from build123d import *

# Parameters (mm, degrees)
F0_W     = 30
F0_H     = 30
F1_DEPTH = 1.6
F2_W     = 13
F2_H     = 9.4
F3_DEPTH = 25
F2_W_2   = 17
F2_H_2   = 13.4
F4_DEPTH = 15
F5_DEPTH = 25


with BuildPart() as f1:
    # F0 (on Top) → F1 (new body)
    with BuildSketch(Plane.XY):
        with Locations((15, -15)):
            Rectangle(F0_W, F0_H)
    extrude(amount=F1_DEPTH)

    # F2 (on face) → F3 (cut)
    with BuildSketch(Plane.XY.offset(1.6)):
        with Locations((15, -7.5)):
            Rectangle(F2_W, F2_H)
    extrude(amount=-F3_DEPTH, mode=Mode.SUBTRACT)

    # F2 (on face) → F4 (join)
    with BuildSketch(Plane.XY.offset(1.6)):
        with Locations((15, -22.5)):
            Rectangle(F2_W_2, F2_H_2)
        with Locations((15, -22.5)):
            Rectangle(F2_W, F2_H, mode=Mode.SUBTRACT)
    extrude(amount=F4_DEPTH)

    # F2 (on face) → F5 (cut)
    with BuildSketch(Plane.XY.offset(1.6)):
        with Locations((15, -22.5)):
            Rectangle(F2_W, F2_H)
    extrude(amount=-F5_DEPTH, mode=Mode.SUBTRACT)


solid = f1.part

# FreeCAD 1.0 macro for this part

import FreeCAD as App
import Part
import Sketcher
Q = App.Units.Quantity

doc = App.newDocument("Part")
body = doc.addObject("PartDesign::Body", "Body")

# Sketch on XY plane
sketch1 = body.newObject("Sketcher::SketchObject", "Sketch")
sketch1.AttachmentSupport = (doc.getObject("XY_Plane"), [""])
sketch1.MapMode = "FlatFace"
sketch1.addGeometry([
    Part.LineSegment(App.Vector(0, 0, 0), App.Vector(0, -30, 0)),
    Part.LineSegment(App.Vector(0, -30, 0), App.Vector(30, -30, 0)),
    Part.LineSegment(App.Vector(30, -30, 0), App.Vector(30, 0, 0)),
    Part.LineSegment(App.Vector(30, 0, 0), App.Vector(0, 0, 0)),
], False)
sketch1.addConstraint([
    Sketcher.Constraint("Coincident", 0, 2, 1, 1),
    Sketcher.Constraint("Coincident", 1, 2, 2, 1),
    Sketcher.Constraint("Coincident", 2, 2, 3, 1),
    Sketcher.Constraint("Coincident", 3, 2, 0, 1),
    Sketcher.Constraint("Vertical", 0),
    Sketcher.Constraint("Horizontal", 1),
    Sketcher.Constraint("Vertical", 2),
    Sketcher.Constraint("Horizontal", 3),
    Sketcher.Constraint("Coincident", 3, 2, -1, 1),
    Sketcher.Constraint("Equal", 3, 0),
    Sketcher.Constraint("DistanceX", 1, 1, 1, 2, Q("30 mm")),
])
pad1 = body.newObject("PartDesign::Pad", "Pad")
pad1.Profile = sketch1
pad1.Length = 1.6

# Sketch on XY plane
sketch2 = body.newObject("Sketcher::SketchObject", "Sketch001")
sketch2.AttachmentSupport = (doc.getObject("XY_Plane"), [""])
sketch2.MapMode = "FlatFace"
sketch2.AttachmentOffset = App.Placement(App.Vector(0, 0, 1.6), App.Rotation())
sketch2.addGeometry([
    Part.LineSegment(App.Vector(8, -3, 0), App.Vector(8, -12, 0)),
    Part.LineSegment(App.Vector(8, -12, 0), App.Vector(22, -12, 0)),
    Part.LineSegment(App.Vector(22, -12, 0), App.Vector(22, -3, 0)),
    Part.LineSegment(App.Vector(22, -3, 0), App.Vector(8, -3, 0)),
], False)
sketch2.addConstraint([
    Sketcher.Constraint("Coincident", 0, 2, 1, 1),
    Sketcher.Constraint("Coincident", 1, 2, 2, 1),
    Sketcher.Constraint("Coincident", 2, 2, 3, 1),
    Sketcher.Constraint("Coincident", 3, 2, 0, 1),
    Sketcher.Constraint("Vertical", 0),
    Sketcher.Constraint("Horizontal", 1),
    Sketcher.Constraint("Vertical", 2),
    Sketcher.Constraint("Horizontal", 3),
    Sketcher.Constraint("DistanceX", 1, 1, 1, 2, Q("13 mm")),
    Sketcher.Constraint("DistanceY", 0, 2, 0, 1, Q("9.4 mm")),
    Sketcher.Constraint("DistanceX", -1, 1, 0, 2, Q("8.5 mm")),
    Sketcher.Constraint("DistanceY", 0, 2, -1, 1, Q("12.2 mm")),
])
pocket1 = body.newObject("PartDesign::Pocket", "Pocket")
pocket1.Profile = sketch2
pocket1.Length = 25

# Sketch on XY plane
sketch3 = body.newObject("Sketcher::SketchObject", "Sketch002")
sketch3.AttachmentSupport = (doc.getObject("XY_Plane"), [""])
sketch3.MapMode = "FlatFace"
sketch3.AttachmentOffset = App.Placement(App.Vector(0, 0, 1.6), App.Rotation())
sketch3.addGeometry([
    Part.LineSegment(App.Vector(6, -16, 0), App.Vector(6, -29, 0)),  # 0
    Part.LineSegment(App.Vector(6, -29, 0), App.Vector(24, -29, 0)),  # 1
    Part.LineSegment(App.Vector(24, -29, 0), App.Vector(24, -16, 0)),  # 2
    Part.LineSegment(App.Vector(24, -16, 0), App.Vector(6, -16, 0)),  # 3
    Part.LineSegment(App.Vector(22, -27, 0), App.Vector(8, -27, 0)),  # 4
    Part.LineSegment(App.Vector(8, -27, 0), App.Vector(8, -18, 0)),  # 5
    Part.LineSegment(App.Vector(8, -18, 0), App.Vector(22, -18, 0)),  # 6
    Part.LineSegment(App.Vector(22, -18, 0), App.Vector(22, -27, 0)),  # 7
], False)
sketch3.addConstraint([
    Sketcher.Constraint("Coincident", 0, 2, 1, 1),
    Sketcher.Constraint("Coincident", 1, 2, 2, 1),
    Sketcher.Constraint("Coincident", 2, 2, 3, 1),
    Sketcher.Constraint("Coincident", 3, 2, 0, 1),
    Sketcher.Constraint("Coincident", 4, 2, 5, 1),
    Sketcher.Constraint("Coincident", 5, 2, 6, 1),
    Sketcher.Constraint("Coincident", 6, 2, 7, 1),
    Sketcher.Constraint("Coincident", 7, 2, 4, 1),
    Sketcher.Constraint("Vertical", 0),
    Sketcher.Constraint("Horizontal", 1),
    Sketcher.Constraint("Vertical", 2),
    Sketcher.Constraint("Horizontal", 3),
    Sketcher.Constraint("Horizontal", 4),
    Sketcher.Constraint("Vertical", 5),
    Sketcher.Constraint("Horizontal", 6),
    Sketcher.Constraint("Vertical", 7),
    Sketcher.Constraint("DistanceX", 1, 1, 1, 2, Q("17 mm")),
    Sketcher.Constraint("DistanceX", 4, 2, 4, 1, Q("13 mm")),
    Sketcher.Constraint("DistanceY", 0, 2, 0, 1, Q("13.4 mm")),
    Sketcher.Constraint("DistanceY", 5, 1, 5, 2, Q("9.4 mm")),
    Sketcher.Constraint("DistanceX", 0, 2, 4, 2, Q("2 mm")),
    Sketcher.Constraint("DistanceY", 0, 2, 4, 2, Q("2 mm")),
    Sketcher.Constraint("DistanceX", -1, 1, 0, 2, Q("6.5 mm")),
    Sketcher.Constraint("DistanceY", 0, 2, -1, 1, Q("29.2 mm")),
])
pad2 = body.newObject("PartDesign::Pad", "Pad001")
pad2.Profile = sketch3
pad2.Length = 15

# Sketch on XY plane
sketch4 = body.newObject("Sketcher::SketchObject", "Sketch003")
sketch4.AttachmentSupport = (doc.getObject("XY_Plane"), [""])
sketch4.MapMode = "FlatFace"
sketch4.AttachmentOffset = App.Placement(App.Vector(0, 0, 1.6), App.Rotation())
sketch4.addGeometry([
    Part.LineSegment(App.Vector(8, -18, 0), App.Vector(8, -27, 0)),
    Part.LineSegment(App.Vector(8, -27, 0), App.Vector(22, -27, 0)),
    Part.LineSegment(App.Vector(22, -27, 0), App.Vector(22, -18, 0)),
    Part.LineSegment(App.Vector(22, -18, 0), App.Vector(8, -18, 0)),
], False)
sketch4.addConstraint([
    Sketcher.Constraint("Coincident", 0, 2, 1, 1),
    Sketcher.Constraint("Coincident", 1, 2, 2, 1),
    Sketcher.Constraint("Coincident", 2, 2, 3, 1),
    Sketcher.Constraint("Coincident", 3, 2, 0, 1),
    Sketcher.Constraint("Vertical", 0),
    Sketcher.Constraint("Horizontal", 1),
    Sketcher.Constraint("Vertical", 2),
    Sketcher.Constraint("Horizontal", 3),
    Sketcher.Constraint("DistanceX", 1, 1, 1, 2, Q("13 mm")),
    Sketcher.Constraint("DistanceY", 0, 2, 0, 1, Q("9.4 mm")),
    Sketcher.Constraint("DistanceX", -1, 1, 0, 2, Q("8.5 mm")),
    Sketcher.Constraint("DistanceY", 0, 2, -1, 1, Q("27.2 mm")),
])
pocket2 = body.newObject("PartDesign::Pocket", "Pocket001")
pocket2.Profile = sketch4
pocket2.Length = 25

doc.recompute()
